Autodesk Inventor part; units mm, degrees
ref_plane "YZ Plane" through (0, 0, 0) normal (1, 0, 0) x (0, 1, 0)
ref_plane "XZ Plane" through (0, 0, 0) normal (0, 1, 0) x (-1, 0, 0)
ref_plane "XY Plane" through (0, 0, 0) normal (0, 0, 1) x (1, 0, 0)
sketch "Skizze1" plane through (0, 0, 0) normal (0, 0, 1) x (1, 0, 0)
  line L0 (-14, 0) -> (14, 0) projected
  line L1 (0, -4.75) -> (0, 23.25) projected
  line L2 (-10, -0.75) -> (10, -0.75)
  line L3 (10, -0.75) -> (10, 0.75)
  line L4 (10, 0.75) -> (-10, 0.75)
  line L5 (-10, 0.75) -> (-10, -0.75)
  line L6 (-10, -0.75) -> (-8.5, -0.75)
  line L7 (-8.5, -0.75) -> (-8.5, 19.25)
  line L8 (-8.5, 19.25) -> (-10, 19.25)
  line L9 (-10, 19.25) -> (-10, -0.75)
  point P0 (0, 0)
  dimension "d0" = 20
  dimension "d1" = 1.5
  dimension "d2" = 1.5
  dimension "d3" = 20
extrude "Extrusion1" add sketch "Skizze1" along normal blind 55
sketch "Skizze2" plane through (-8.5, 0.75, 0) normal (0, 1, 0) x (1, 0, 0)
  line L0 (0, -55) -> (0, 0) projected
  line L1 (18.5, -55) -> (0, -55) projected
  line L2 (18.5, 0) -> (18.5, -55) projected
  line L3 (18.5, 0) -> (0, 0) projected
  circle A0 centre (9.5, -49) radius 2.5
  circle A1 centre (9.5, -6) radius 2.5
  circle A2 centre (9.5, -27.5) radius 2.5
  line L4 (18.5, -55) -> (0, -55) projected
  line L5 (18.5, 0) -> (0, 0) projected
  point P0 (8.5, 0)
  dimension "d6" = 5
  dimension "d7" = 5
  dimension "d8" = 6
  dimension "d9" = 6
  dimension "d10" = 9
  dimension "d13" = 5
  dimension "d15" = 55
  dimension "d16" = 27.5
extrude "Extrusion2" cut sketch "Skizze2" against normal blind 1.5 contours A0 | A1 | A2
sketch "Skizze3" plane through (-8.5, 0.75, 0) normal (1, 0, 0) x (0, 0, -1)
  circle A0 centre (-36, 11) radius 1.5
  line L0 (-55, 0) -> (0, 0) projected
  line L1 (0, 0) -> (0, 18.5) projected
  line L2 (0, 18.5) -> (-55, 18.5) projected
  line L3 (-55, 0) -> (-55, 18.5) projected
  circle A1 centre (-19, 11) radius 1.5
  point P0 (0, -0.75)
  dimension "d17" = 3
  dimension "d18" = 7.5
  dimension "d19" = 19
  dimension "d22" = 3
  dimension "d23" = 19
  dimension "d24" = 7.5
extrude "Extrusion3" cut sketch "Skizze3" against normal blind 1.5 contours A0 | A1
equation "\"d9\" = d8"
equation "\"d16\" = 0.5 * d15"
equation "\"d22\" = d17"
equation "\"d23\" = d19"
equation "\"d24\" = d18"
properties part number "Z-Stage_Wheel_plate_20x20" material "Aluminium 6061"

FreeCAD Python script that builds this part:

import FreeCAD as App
import Part
import Sketcher
from FreeCAD import Vector
Q = App.Units.Quantity


def add_polygon(sketch, points):
    """Adds a closed chain of lines whose ends are joined by coincident constraints."""
    first, n = sketch.GeometryCount, len(points)
    for a, b in zip(points, points[1:] + points[:1]):
        sketch.addGeometry(Part.LineSegment(App.Vector(*a, 0), App.Vector(*b, 0)), False)
    for i in range(n):
        sketch.addConstraint(Sketcher.Constraint("Coincident", first + i, 2, first + (i + 1) % n, 1))

doc = App.newDocument("Part")
body = doc.addObject("PartDesign::Body", "Body")

sketch1 = body.newObject("Sketcher::SketchObject", "Sketch")
sketch1.AttachmentSupport = (doc.getObject("XY_Plane"), [""])
sketch1.MapMode = "FlatFace"
add_polygon(sketch1, [(-10, -0.75), (10, -0.75), (10, 0.75), (-8.5, 0.75), (-8.5, 19.25), (-10, 19.25)])
sketch1.addConstraint([
    Sketcher.Constraint("Horizontal", 0),
    Sketcher.Constraint("Vertical", 1),
    Sketcher.Constraint("Horizontal", 2),
    Sketcher.Constraint("Vertical", 3),
    Sketcher.Constraint("Horizontal", 4),
    Sketcher.Constraint("Vertical", 5),
    Sketcher.Constraint("Symmetric", 1, 2, 5, 2, -1, 1),
    Sketcher.Constraint("Equal", 4, 1),
    Sketcher.Constraint("Equal", 2, 3),
    Sketcher.Constraint("DistanceX", 0, 1, 0, 2, Q("20 mm")),
    Sketcher.Constraint("DistanceX", 4, 2, 4, 1, Q("1.5 mm")),
])
pad1 = body.newObject("PartDesign::Pad", "Pad")
pad1.Profile = sketch1
pad1.Length = 55

sketch2 = body.newObject("Sketcher::SketchObject", "Sketch001")
sketch2.AttachmentSupport = (doc.getObject("XZ_Plane"), [""])
sketch2.MapMode = "FlatFace"
sketch2.AttachmentOffset = App.Placement(Vector(0, 0, -0.75), App.Rotation())
sketch2.addGeometry([
    Part.Circle(Vector(1, 49, 0), Vector(0, 0, 1), 2.5),
    Part.Circle(Vector(1, 6, 0), Vector(0, 0, 1), 2.5),
    Part.Circle(Vector(1, 27.5, 0), Vector(0, 0, 1), 2.5),
], False)
sketch2.addConstraint([
    Sketcher.Constraint("Equal", 0, 1),
    Sketcher.Constraint("Equal", 1, 2),
    Sketcher.Constraint("Vertical", 0, 3, 1, 3),
    Sketcher.Constraint("Vertical", 1, 3, 2, 3),
    Sketcher.Constraint("Diameter", 0, Q("5 mm")),
    Sketcher.Constraint("DistanceY", -1, 1, 1, 3, Q("6 mm")),
    Sketcher.Constraint("DistanceY", -1, 1, 2, 3, Q("27.5 mm")),
    Sketcher.Constraint("DistanceX", -1, 1, 0, 3, Q("1 mm")),
    Sketcher.Constraint("DistanceY", -1, 1, 0, 3, Q("49 mm")),
])
pocket1 = body.newObject("PartDesign::Pocket", "Pocket")
pocket1.Profile = sketch2
pocket1.Length = 1.5
pocket1.Reversed = True

sketch3 = body.newObject("Sketcher::SketchObject", "Sketch002")
sketch3.AttachmentSupport = (doc.getObject("YZ_Plane"), [""])
sketch3.MapMode = "FlatFace"
sketch3.AttachmentOffset = App.Placement(Vector(0, 0, -8.5), App.Rotation())
sketch3.addGeometry([
    Part.Circle(Vector(11.75, 36, 0), Vector(0, 0, 1), 1.5),
    Part.Circle(Vector(11.75, 19, 0), Vector(0, 0, 1), 1.5),
], False)
sketch3.addConstraint([
    Sketcher.Constraint("Equal", 0, 1),
    Sketcher.Constraint("Vertical", 0, 3, 1, 3),
    Sketcher.Constraint("Diameter", 0, Q("3 mm")),
    Sketcher.Constraint("DistanceY", -1, 1, 1, 3, Q("19 mm")),
    Sketcher.Constraint("DistanceY", -1, 1, 0, 3, Q("36 mm")),
    Sketcher.Constraint("DistanceX", -1, 1, 0, 3, Q("11.75 mm")),
])
pocket2 = body.newObject("PartDesign::Pocket", "Pocket001")
pocket2.Profile = sketch3
pocket2.Length = 1.5

doc.recompute()
